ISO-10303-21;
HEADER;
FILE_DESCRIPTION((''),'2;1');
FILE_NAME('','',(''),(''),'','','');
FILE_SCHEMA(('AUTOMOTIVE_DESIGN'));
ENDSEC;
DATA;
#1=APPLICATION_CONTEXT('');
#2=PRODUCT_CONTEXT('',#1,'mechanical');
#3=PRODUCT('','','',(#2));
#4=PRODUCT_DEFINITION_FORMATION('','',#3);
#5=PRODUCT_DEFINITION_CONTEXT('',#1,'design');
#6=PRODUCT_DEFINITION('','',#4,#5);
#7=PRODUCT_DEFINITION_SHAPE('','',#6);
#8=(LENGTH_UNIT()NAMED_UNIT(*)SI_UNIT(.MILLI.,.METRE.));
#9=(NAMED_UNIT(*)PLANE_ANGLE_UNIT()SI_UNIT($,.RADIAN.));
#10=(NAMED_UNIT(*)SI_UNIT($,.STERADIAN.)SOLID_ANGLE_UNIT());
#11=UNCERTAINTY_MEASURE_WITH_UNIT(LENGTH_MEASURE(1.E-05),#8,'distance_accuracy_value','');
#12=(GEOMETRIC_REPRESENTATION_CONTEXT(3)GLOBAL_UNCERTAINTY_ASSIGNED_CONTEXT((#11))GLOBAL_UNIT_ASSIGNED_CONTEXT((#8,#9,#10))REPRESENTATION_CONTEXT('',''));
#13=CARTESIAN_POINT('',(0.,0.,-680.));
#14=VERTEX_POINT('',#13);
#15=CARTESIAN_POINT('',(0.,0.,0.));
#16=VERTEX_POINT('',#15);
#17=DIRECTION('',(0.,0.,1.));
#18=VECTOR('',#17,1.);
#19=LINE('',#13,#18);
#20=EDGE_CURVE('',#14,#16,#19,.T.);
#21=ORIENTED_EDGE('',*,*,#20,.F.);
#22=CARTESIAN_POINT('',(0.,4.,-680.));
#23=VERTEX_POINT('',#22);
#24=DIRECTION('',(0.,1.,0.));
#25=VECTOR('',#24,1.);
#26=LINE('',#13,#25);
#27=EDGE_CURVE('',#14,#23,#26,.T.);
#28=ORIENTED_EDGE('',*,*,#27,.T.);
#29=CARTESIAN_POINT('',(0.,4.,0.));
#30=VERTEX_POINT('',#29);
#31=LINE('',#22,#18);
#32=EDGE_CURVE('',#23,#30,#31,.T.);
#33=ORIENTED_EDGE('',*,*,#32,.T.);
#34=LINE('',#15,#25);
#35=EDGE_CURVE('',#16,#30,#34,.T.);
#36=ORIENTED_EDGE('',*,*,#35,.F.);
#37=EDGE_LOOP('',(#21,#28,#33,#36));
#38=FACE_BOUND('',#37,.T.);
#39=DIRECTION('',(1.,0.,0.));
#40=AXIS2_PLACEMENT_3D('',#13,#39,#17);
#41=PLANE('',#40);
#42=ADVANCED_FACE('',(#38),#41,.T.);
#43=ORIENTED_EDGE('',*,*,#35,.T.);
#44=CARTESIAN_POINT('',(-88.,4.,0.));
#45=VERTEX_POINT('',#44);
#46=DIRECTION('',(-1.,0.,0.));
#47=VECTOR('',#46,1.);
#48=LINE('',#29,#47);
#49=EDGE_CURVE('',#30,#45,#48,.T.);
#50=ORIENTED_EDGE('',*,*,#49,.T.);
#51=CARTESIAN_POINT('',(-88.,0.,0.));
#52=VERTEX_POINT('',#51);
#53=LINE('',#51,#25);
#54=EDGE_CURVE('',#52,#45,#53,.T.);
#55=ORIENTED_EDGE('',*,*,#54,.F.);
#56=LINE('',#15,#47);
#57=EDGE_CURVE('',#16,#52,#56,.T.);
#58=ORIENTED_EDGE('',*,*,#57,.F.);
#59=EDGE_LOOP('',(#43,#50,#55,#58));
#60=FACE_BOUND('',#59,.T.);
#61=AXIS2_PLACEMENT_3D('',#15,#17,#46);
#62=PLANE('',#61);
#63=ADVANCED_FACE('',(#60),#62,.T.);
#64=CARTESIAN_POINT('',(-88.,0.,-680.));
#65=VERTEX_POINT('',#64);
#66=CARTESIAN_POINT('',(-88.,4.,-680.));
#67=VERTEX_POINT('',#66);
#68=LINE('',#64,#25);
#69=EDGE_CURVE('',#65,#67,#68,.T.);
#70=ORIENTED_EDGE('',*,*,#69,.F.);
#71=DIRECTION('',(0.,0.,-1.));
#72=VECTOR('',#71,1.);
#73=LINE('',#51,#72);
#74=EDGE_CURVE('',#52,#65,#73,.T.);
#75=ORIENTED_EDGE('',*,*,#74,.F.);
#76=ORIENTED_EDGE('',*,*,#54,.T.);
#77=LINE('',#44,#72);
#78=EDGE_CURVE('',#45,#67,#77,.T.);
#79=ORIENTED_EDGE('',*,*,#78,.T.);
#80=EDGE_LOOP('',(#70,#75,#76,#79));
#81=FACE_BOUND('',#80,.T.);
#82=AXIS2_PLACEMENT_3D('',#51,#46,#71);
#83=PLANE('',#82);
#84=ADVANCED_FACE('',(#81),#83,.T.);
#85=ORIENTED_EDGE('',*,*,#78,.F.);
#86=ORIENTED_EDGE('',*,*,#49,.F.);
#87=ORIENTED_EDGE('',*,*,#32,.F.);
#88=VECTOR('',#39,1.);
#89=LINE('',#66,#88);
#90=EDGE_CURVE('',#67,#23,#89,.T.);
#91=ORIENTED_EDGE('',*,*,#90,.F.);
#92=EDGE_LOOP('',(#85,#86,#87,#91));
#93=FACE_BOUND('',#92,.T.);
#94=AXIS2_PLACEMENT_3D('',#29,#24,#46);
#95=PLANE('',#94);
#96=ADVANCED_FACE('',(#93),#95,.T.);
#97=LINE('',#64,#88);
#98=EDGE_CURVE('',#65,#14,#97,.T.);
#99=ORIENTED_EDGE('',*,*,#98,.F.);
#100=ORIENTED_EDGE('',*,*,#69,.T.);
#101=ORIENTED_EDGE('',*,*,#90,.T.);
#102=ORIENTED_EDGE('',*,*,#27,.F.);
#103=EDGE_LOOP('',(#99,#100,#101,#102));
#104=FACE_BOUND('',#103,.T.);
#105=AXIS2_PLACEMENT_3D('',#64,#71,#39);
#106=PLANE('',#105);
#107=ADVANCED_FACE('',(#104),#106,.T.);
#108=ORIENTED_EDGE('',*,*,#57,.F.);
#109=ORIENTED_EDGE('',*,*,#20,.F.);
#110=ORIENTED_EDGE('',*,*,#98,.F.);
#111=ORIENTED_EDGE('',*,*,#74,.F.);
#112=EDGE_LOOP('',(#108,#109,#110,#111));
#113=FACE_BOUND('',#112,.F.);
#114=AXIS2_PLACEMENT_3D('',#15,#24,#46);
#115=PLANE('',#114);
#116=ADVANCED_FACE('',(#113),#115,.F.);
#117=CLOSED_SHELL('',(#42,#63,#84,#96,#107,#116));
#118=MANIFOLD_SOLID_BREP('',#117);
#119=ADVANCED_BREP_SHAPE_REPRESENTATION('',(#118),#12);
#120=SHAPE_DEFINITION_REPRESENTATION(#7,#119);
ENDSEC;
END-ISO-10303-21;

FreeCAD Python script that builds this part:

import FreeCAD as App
import Part
import Sketcher

doc = App.newDocument("Part")
body = doc.addObject("PartDesign::Body", "Body")

# Sketch on XZ plane
sketch1 = body.newObject("Sketcher::SketchObject", "Sketch")
sketch1.AttachmentSupport = (doc.getObject("XZ_Plane"), [""])
sketch1.MapMode = "FlatFace"
sketch1.addGeometry(Part.LineSegment(App.Vector(-88, 0, 0), App.Vector(0, 0, 0)), False)
sketch1.addGeometry(Part.LineSegment(App.Vector(0, 0, 0), App.Vector(0, -680, 0)), False)
sketch1.addGeometry(Part.LineSegment(App.Vector(0, -680, 0), App.Vector(-88, -680, 0)), False)
sketch1.addGeometry(Part.LineSegment(App.Vector(-88, -680, 0), App.Vector(-88, 0, 0)), False)
sketch1.addConstraint(Sketcher.Constraint("Coincident", 0, 2, 1, 1))
sketch1.addConstraint(Sketcher.Constraint("Coincident", 1, 2, 2, 1))
sketch1.addConstraint(Sketcher.Constraint("Coincident", 2, 2, 3, 1))
sketch1.addConstraint(Sketcher.Constraint("Coincident", 3, 2, 0, 1))
sketch1.addConstraint(Sketcher.Constraint("Horizontal", 0))
sketch1.addConstraint(Sketcher.Constraint("Vertical", 1))
sketch1.addConstraint(Sketcher.Constraint("Horizontal", 2))
sketch1.addConstraint(Sketcher.Constraint("Vertical", 3))
sketch1.addConstraint(Sketcher.Constraint("Coincident", 0, 2, -1, 1))
sketch1.addConstraint(Sketcher.Constraint("DistanceX", 0, 1, 0, 2, 88.0))
sketch1.addConstraint(Sketcher.Constraint("DistanceY", 1, 2, 1, 1, 680.0))
pad1 = body.newObject("PartDesign::Pad", "Pad")
pad1.Profile = sketch1
pad1.Length = 4
pad1.Reversed = True

doc.recompute()
